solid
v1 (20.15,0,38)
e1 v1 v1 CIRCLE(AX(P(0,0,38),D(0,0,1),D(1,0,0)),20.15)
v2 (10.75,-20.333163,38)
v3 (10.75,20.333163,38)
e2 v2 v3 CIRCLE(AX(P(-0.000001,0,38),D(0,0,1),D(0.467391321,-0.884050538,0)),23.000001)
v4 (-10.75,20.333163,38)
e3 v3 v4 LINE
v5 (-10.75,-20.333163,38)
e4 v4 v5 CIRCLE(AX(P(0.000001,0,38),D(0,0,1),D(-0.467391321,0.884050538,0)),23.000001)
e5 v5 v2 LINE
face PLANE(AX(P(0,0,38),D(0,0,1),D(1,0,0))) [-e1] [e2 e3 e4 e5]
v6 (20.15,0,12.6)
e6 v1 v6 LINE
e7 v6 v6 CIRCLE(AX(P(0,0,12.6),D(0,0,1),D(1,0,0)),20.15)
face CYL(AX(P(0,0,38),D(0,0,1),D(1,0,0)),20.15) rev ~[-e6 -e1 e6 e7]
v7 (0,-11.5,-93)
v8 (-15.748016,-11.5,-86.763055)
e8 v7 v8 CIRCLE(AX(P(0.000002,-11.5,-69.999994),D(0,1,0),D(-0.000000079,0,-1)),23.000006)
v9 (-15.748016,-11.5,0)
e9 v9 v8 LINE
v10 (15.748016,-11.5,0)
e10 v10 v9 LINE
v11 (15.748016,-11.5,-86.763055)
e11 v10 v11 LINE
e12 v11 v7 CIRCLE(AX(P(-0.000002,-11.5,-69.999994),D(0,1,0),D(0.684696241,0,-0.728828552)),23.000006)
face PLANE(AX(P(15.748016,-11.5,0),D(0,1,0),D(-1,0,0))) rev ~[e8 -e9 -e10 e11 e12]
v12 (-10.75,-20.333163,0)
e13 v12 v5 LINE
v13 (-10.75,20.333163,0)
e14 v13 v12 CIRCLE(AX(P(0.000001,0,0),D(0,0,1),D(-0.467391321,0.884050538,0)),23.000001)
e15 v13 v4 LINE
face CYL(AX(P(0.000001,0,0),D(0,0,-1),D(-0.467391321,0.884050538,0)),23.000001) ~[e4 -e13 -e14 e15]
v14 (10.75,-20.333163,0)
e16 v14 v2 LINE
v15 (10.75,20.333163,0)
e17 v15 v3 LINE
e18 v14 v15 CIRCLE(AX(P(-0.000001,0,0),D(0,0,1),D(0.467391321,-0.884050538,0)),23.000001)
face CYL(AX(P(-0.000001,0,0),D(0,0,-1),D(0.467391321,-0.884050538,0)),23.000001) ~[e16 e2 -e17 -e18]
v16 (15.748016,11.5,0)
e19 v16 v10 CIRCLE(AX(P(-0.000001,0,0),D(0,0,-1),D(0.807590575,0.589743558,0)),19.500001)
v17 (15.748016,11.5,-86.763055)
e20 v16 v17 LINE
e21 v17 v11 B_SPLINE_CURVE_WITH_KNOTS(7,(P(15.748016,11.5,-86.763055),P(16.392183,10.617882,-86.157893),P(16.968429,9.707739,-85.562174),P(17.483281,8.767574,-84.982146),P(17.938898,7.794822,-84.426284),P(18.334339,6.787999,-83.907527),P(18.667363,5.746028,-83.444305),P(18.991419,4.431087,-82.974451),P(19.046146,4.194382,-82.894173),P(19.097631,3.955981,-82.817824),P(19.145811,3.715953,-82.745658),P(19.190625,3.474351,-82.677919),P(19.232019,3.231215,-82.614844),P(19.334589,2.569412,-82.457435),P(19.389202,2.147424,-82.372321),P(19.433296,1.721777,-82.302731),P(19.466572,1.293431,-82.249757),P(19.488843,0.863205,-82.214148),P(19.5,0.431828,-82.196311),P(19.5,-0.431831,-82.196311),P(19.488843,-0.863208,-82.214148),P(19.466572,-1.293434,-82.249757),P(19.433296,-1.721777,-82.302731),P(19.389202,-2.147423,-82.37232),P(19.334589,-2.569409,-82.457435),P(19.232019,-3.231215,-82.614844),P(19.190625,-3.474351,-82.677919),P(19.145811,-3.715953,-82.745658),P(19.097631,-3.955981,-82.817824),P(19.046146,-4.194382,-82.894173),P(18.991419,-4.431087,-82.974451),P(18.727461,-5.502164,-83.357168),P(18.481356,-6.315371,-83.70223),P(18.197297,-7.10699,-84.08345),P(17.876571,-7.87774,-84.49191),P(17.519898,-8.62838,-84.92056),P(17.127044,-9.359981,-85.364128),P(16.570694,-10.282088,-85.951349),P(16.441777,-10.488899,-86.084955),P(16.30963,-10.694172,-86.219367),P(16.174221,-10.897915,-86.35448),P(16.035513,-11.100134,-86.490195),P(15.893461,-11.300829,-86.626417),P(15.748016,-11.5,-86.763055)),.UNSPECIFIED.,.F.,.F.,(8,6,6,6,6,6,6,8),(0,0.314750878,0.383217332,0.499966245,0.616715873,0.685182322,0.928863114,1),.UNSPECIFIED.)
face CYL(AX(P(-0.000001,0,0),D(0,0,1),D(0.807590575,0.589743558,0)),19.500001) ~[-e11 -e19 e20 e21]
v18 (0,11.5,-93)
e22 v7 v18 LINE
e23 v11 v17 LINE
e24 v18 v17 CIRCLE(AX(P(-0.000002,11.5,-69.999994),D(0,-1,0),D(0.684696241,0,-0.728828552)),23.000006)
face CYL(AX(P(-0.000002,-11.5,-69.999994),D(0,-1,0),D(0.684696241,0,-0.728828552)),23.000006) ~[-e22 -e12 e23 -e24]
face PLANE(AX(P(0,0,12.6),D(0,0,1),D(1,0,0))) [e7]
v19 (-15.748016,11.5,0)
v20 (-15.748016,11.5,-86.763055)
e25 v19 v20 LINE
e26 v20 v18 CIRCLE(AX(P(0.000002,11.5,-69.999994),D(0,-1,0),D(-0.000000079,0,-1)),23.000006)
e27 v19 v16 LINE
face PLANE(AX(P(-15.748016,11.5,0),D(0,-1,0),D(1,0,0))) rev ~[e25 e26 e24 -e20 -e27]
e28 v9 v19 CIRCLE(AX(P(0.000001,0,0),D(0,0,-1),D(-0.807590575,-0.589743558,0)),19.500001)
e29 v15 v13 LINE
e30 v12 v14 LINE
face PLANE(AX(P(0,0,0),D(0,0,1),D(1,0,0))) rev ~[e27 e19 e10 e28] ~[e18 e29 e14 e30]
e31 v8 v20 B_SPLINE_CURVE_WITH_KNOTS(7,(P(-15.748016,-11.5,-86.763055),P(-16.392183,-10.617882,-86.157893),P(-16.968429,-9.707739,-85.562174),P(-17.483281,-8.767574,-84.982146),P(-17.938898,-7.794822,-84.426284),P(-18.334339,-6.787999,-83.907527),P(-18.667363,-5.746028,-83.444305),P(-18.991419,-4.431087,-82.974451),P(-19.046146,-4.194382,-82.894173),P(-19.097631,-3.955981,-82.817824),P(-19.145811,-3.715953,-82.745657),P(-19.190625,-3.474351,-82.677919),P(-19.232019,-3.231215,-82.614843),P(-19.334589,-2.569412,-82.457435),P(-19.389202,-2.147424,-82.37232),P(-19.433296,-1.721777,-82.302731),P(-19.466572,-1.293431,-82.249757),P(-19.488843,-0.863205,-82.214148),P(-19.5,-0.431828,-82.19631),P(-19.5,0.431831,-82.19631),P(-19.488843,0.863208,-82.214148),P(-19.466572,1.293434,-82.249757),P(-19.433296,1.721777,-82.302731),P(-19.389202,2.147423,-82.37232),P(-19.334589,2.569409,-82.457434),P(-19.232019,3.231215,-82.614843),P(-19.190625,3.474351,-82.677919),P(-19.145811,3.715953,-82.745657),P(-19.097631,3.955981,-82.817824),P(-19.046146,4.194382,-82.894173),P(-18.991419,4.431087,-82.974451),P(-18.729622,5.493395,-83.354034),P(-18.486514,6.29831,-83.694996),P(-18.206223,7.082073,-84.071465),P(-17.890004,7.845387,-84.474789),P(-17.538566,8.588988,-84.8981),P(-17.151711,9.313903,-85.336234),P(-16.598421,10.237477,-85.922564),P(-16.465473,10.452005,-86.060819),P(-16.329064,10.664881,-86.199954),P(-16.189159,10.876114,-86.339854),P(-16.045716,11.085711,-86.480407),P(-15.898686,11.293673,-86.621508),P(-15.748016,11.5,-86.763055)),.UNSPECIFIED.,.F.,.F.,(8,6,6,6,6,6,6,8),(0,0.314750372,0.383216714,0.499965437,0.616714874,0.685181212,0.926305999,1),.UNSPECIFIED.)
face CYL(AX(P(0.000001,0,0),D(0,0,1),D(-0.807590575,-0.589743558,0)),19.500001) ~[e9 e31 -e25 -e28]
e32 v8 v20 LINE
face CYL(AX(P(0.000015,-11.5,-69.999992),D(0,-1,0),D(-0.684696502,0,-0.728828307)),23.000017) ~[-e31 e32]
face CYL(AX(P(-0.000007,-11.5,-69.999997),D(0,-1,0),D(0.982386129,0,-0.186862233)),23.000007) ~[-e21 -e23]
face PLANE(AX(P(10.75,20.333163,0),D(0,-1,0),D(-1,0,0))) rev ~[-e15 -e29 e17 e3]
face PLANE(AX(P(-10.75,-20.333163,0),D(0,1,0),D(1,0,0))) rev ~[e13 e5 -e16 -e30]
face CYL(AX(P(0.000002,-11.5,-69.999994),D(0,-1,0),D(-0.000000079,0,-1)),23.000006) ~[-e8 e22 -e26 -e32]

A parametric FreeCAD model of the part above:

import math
import FreeCAD as App
import Part
import Sketcher

V = App.Vector

doc = App.newDocument("Part")
body = doc.addObject("PartDesign::Body", "Body")

sketch1 = body.newObject("Sketcher::SketchObject", "Sketch")
sketch1.AttachmentSupport = (doc.getObject("XY_Plane"), [""])
sketch1.MapMode = "FlatFace"
sketch1.addGeometry(Part.LineSegment(V(10.75, 20.333163, 0), V(-10.75, 20.333163, 0)), False)
sketch1.addGeometry(Part.ArcOfCircle(Part.Circle(V(0.000001, 0, 0), V(0, 0, 1), 23.000001), math.radians(117.865094), math.radians(242.134906)), False)
sketch1.addGeometry(Part.LineSegment(V(-10.75, -20.333163, 0), V(10.75, -20.333163, 0)), False)
sketch1.addGeometry(Part.ArcOfCircle(Part.Circle(V(-0.000001, 0, 0), V(0, 0, 1), 23.000001), math.radians(-62.134906), math.radians(62.134906)), False)
sketch1.addConstraint(Sketcher.Constraint("Coincident", 0, 2, 1, 1))
sketch1.addConstraint(Sketcher.Constraint("Coincident", 1, 2, 2, 1))
sketch1.addConstraint(Sketcher.Constraint("Coincident", 2, 2, 3, 1))
sketch1.addConstraint(Sketcher.Constraint("Coincident", 3, 2, 0, 1))
sketch1.addConstraint(Sketcher.Constraint("Horizontal", 0))
sketch1.addConstraint(Sketcher.Constraint("Horizontal", 2))
sketch1.addConstraint(Sketcher.Constraint("Coincident", 1, 3, -1, 1))
sketch1.addConstraint(Sketcher.Constraint("Coincident", 3, 3, -1, 1))
sketch1.addConstraint(Sketcher.Constraint("Equal", 1, 3))
sketch1.addConstraint(Sketcher.Constraint("Vertical", 0, 2, 1, 2))
sketch1.addConstraint(Sketcher.Constraint("Radius", 1, 23.000001))
sketch1.addConstraint(Sketcher.Constraint("DistanceX", 0, 2, 0, 1, 21.5))
pad1 = body.newObject("PartDesign::Pad", "Pad")
pad1.Profile = sketch1
pad1.Length = 38

sketch2 = body.newObject("Sketcher::SketchObject", "Sketch001")
sketch2.AttachmentSupport = (doc.getObject("XY_Plane"), [""])
sketch2.MapMode = "FlatFace"
sketch2.AttachmentOffset = App.Placement(V(0, 0, 38), App.Rotation())
sketch2.addGeometry(Part.Circle(V(0, 0, 0), V(0, 0, 1), 20.15), False)
sketch2.addConstraint(Sketcher.Constraint("Coincident", 0, 3, -1, 1))
sketch2.addConstraint(Sketcher.Constraint("Diameter", 0, 40.3))
pocket1 = body.newObject("PartDesign::Pocket", "Pocket")
pocket1.Profile = sketch2
pocket1.Length = 25.4

sketch3 = body.newObject("Sketcher::SketchObject", "Sketch002")
sketch3.AttachmentSupport = (doc.getObject("XY_Plane"), [""])
sketch3.MapMode = "FlatFace"
sketch3.addGeometry(Part.LineSegment(V(15.748016, -11.5, 0), V(-15.748016, -11.5, 0)), False)
sketch3.addGeometry(Part.ArcOfCircle(Part.Circle(V(0.000001, 0, 0), V(0, 0, 1), 19.500001), math.radians(143.861188), math.radians(216.138812)), False)
sketch3.addGeometry(Part.LineSegment(V(-15.748016, 11.5, 0), V(15.748016, 11.5, 0)), False)
sketch3.addGeometry(Part.ArcOfCircle(Part.Circle(V(-0.000001, 0, 0), V(0, 0, 1), 19.500001), math.radians(-36.138812), math.radians(36.138812)), False)
sketch3.addConstraint(Sketcher.Constraint("Coincident", 0, 2, 1, 2))
sketch3.addConstraint(Sketcher.Constraint("Coincident", 1, 1, 2, 1))
sketch3.addConstraint(Sketcher.Constraint("Coincident", 2, 2, 3, 2))
sketch3.addConstraint(Sketcher.Constraint("Coincident", 3, 1, 0, 1))
sketch3.addConstraint(Sketcher.Constraint("Horizontal", 0))
sketch3.addConstraint(Sketcher.Constraint("Horizontal", 2))
sketch3.addConstraint(Sketcher.Constraint("Coincident", 1, 3, -1, 1))
sketch3.addConstraint(Sketcher.Constraint("Coincident", 3, 3, -1, 1))
sketch3.addConstraint(Sketcher.Constraint("Equal", 1, 3))
sketch3.addConstraint(Sketcher.Constraint("Vertical", 0, 2, 1, 1))
sketch3.addConstraint(Sketcher.Constraint("Radius", 1, 19.500001))
sketch3.addConstraint(Sketcher.Constraint("DistanceY", 0, 2, 1, 1, 23.0))
pad2 = body.newObject("PartDesign::Pad", "Pad001")
pad2.Profile = sketch3
pad2.Length = 93
pad2.Reversed = True

sketch4 = body.newObject("Sketcher::SketchObject", "Sketch003")
sketch4.AttachmentSupport = (doc.getObject("XZ_Plane"), [""])
sketch4.MapMode = "FlatFace"
sketch4.AttachmentOffset = App.Placement(V(0, 0, 11.5), App.Rotation())
sketch4.addGeometry(Part.ArcOfCircle(Part.Circle(V(0.000015, -69.999992, 0), V(0, 0, 1), 23.000017), math.radians(-164.123511), math.radians(-133.211743)), False)
sketch4.addGeometry(Part.LineSegment(V(-22.122635, -76.291981, 0), V(-44.180881, -110.498317, 0)), False)
sketch4.addGeometry(Part.LineSegment(V(-44.180881, -110.498317, 0), V(51.086351, -107.824139, 0)), False)
sketch4.addGeometry(Part.LineSegment(V(51.086351, -107.824139, 0), V(22.594881, -74.29783, 0)), False)
sketch4.addGeometry(Part.ArcOfCircle(Part.Circle(V(-0.000007, -69.999997, 0), V(0, 0, 1), 23.000007), math.radians(-46.788261), math.radians(-10.769724)), False)
sketch4.addGeometry(Part.ArcOfCircle(Part.Circle(V(-0.000002, -69.999994, 0), V(0, 0, 1), 23.000006), math.radians(-89.999995), math.radians(-46.788277)), False)
sketch4.addGeometry(Part.ArcOfCircle(Part.Circle(V(0.000002, -69.999994, 0), V(0, 0, 1), 23.000006), math.radians(-133.211723), math.radians(-90.000005)), False)
sketch4.addConstraint(Sketcher.Constraint("Coincident", 0, 1, 1, 1))
sketch4.addConstraint(Sketcher.Constraint("Coincident", 1, 2, 2, 1))
sketch4.addConstraint(Sketcher.Constraint("Coincident", 2, 2, 3, 1))
sketch4.addConstraint(Sketcher.Constraint("Coincident", 3, 2, 4, 2))
sketch4.addConstraint(Sketcher.Constraint("Coincident", 4, 1, 5, 2))
sketch4.addConstraint(Sketcher.Constraint("Coincident", 5, 1, 6, 2))
sketch4.addConstraint(Sketcher.Constraint("Coincident", 6, 1, 0, 2))
sketch4.addConstraint(Sketcher.Constraint("Coincident", 5, 3, 4, 3))
sketch4.addConstraint(Sketcher.Constraint("Coincident", 6, 3, 4, 3))
sketch4.addConstraint(Sketcher.Constraint("PointOnObject", 5, 3, -2))
sketch4.addConstraint(Sketcher.Constraint("PointOnObject", 5, 1, -2))
sketch4.addConstraint(Sketcher.Constraint("DistanceY", 5, 1, -1, 1, 93.0))
sketch4.addConstraint(Sketcher.Constraint("Radius", 0, 23.000017))
sketch4.addConstraint(Sketcher.Constraint("Radius", 4, 23.000007))
sketch4.addConstraint(Sketcher.Constraint("DistanceX", 0, 3, 4, 1, 15.748001))
sketch4.addConstraint(Sketcher.Constraint("Distance", 1, 40.701838))
sketch4.addConstraint(Sketcher.Constraint("Distance", 3, 43.997469))
sketch4.addConstraint(Sketcher.Constraint("DistanceY", 0, 3, -1, 1, 69.999992))
sketch4.addConstraint(Sketcher.Constraint("DistanceY", 0, 1, -1, 1, 76.291981))
sketch4.addConstraint(Sketcher.Constraint("DistanceX", 1, 2, -1, 1, 44.180881))
sketch4.addConstraint(Sketcher.Constraint("DistanceX", -1, 1, 2, 2, 51.086351))
sketch4.addConstraint(Sketcher.Constraint("DistanceY", 2, 2, -1, 1, 107.824139))
sketch4.addConstraint(Sketcher.Constraint("DistanceX", 0, 1, 6, 1, 6.374619))
pocket2 = body.newObject("PartDesign::Pocket", "Pocket001")
pocket2.Profile = sketch4
pocket2.Type = "ThroughAll"

doc.recompute()
